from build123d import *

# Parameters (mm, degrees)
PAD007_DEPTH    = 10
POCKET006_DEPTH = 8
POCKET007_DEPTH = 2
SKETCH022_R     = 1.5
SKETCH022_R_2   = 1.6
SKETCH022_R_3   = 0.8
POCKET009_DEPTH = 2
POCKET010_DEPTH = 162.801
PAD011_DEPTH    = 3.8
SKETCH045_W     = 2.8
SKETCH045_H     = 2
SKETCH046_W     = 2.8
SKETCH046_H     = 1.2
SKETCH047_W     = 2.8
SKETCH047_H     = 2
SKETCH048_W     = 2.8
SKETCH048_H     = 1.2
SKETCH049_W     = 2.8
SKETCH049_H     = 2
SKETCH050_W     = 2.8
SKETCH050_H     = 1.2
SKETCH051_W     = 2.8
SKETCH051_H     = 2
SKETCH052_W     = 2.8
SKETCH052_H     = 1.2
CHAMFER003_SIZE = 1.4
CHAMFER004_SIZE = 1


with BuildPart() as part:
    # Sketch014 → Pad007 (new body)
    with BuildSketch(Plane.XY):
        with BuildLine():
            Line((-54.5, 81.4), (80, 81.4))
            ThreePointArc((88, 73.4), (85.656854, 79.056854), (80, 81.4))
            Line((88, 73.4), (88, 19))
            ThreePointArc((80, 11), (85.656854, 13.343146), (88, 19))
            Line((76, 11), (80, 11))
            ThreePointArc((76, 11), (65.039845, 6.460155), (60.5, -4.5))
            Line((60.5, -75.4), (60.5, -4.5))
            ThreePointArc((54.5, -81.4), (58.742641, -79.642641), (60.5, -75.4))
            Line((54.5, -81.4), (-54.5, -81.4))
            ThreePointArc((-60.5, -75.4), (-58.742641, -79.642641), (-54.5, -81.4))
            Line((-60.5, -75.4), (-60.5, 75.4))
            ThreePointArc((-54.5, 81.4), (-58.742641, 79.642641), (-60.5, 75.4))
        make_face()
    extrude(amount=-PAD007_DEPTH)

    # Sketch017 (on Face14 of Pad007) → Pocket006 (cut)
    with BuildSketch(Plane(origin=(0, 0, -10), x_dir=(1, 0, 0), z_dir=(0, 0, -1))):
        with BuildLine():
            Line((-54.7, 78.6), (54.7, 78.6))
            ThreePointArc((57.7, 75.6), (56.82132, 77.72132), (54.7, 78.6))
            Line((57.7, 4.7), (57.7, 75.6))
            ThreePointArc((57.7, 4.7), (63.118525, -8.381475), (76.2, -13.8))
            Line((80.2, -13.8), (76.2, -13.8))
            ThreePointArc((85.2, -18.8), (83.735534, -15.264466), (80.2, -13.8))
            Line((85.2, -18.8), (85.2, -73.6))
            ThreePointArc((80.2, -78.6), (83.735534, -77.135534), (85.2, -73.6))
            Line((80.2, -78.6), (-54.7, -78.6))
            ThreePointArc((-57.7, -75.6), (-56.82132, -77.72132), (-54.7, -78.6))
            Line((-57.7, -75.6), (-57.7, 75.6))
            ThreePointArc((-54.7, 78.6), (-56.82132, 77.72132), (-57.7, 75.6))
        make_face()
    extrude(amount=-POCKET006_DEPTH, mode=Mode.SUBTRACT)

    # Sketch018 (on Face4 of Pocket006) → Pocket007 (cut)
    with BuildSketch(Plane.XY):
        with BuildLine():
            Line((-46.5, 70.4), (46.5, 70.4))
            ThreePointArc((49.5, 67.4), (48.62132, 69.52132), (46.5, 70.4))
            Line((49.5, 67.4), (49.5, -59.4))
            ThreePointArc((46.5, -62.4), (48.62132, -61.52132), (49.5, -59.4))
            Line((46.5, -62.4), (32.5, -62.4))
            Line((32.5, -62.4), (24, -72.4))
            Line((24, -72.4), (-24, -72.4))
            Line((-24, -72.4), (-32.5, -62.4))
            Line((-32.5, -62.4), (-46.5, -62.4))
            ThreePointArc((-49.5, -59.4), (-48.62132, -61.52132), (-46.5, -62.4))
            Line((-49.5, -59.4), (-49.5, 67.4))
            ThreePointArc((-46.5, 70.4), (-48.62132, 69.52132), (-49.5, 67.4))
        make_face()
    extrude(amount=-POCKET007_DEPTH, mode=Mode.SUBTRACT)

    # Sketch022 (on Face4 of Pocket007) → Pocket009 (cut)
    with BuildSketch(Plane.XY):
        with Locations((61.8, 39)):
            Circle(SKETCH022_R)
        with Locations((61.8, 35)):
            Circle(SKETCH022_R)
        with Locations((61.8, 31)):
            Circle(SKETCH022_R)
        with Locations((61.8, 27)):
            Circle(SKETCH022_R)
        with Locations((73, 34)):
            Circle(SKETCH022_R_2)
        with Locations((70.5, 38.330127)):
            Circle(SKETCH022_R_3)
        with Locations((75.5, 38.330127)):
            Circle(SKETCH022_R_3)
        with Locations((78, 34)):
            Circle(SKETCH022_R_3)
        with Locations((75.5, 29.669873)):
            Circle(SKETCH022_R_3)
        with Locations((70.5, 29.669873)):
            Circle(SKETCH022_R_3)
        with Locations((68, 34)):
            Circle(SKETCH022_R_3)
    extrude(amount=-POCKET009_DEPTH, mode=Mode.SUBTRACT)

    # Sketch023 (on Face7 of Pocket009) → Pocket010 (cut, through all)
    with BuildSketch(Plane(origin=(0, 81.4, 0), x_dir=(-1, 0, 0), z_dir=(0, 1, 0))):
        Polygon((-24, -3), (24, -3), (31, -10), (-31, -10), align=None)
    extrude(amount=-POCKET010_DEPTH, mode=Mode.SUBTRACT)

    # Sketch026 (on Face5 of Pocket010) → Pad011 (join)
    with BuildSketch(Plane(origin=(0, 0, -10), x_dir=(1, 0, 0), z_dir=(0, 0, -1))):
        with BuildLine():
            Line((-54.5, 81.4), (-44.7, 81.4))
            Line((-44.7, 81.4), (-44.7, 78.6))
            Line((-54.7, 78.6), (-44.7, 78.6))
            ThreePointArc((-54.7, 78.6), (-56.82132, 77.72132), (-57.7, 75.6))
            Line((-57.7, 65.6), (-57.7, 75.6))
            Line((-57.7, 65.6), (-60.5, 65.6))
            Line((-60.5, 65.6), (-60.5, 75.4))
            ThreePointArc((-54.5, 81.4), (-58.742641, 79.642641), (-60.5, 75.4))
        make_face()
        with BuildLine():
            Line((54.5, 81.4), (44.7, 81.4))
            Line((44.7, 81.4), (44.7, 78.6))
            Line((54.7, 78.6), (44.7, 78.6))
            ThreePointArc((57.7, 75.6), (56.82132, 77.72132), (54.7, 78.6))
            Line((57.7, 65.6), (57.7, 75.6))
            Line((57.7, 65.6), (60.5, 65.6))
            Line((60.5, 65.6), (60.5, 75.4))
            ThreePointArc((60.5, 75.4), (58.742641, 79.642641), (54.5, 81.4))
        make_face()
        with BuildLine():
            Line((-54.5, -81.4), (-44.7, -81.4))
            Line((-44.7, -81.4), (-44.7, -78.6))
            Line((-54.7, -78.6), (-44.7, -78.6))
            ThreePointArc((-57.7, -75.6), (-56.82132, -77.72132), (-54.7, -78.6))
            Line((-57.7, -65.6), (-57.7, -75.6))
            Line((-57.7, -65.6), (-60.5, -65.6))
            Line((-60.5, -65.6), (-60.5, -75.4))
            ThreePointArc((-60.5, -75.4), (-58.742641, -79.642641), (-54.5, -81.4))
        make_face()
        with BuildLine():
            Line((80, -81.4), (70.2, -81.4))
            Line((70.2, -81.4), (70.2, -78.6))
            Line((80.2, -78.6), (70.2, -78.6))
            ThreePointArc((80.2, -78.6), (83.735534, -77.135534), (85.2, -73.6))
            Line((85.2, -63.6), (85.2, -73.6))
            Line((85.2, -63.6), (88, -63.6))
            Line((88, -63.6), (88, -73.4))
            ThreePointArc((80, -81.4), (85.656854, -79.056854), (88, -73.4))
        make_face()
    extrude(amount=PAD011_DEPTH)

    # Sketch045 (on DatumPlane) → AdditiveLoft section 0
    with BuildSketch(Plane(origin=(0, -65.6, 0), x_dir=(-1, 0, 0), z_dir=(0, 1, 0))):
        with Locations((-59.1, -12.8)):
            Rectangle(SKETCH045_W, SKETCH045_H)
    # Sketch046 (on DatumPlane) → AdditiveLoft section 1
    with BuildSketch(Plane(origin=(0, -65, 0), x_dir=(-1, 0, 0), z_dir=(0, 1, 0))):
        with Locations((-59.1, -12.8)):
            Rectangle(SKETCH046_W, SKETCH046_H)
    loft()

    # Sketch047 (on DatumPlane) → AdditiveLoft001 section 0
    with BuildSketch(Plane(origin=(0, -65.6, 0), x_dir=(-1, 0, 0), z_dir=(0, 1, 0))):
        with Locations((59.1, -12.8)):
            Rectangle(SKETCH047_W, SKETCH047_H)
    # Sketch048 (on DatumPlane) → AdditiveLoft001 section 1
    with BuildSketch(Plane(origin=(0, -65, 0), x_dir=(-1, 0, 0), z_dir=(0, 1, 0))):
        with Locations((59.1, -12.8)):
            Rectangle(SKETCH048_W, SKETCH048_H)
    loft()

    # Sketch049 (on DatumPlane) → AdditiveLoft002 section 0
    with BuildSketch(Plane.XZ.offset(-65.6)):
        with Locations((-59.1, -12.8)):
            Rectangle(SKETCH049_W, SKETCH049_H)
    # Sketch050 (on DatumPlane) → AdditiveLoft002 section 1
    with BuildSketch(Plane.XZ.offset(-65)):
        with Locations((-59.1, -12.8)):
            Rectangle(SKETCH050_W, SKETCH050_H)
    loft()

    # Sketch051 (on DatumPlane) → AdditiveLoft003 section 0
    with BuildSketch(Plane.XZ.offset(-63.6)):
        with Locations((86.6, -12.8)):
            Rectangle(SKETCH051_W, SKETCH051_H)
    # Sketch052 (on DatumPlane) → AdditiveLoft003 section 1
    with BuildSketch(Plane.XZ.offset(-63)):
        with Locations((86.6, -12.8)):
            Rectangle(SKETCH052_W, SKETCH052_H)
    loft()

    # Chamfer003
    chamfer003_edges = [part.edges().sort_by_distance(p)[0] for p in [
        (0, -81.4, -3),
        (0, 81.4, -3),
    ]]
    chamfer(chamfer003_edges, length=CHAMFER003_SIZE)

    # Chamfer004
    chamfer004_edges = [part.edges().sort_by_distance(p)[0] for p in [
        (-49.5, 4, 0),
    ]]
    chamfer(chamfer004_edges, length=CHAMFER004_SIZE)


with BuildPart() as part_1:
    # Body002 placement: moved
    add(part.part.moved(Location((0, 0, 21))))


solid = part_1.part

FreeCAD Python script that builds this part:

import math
import FreeCAD as App
import Part
import Sketcher
from FreeCAD import Vector
Q = App.Units.Quantity


def edges_at(feature, points):
    """Names of the edges that pass closest to the given points."""
    edges = feature.Shape.Edges
    near = lambda p: min(range(len(edges)), key=lambda i: edges[i].distToShape(Part.Vertex(*p))[0])
    return sorted({f"Edge{near(p) + 1}" for p in points})

doc = App.newDocument("Part")
body = doc.addObject("PartDesign::Body", "Body")

sketch1 = body.newObject("Sketcher::SketchObject", "Sketch")
sketch1.AttachmentSupport = (doc.getObject("XY_Plane"), [""])
sketch1.MapMode = "FlatFace"
sketch1.addGeometry(Part.LineSegment(Vector(80, 81.4, 0), Vector(-54.5, 81.4, 0)), False)
sketch1.addGeometry(Part.ArcOfCircle(Part.Circle(Vector(-54.5, 75.4, 0), Vector(0, 0, 1), 6), math.radians(90), math.radians(180)), False)
sketch1.addGeometry(Part.LineSegment(Vector(-60.5, 75.4, 0), Vector(-60.5, -75.4, 0)), False)
sketch1.addGeometry(Part.ArcOfCircle(Part.Circle(Vector(-54.5, -75.4, 0), Vector(0, 0, 1), 6), math.radians(180), math.radians(270)), False)
sketch1.addGeometry(Part.LineSegment(Vector(-54.5, -81.4, 0), Vector(54.5, -81.4, 0)), False)
sketch1.addGeometry(Part.ArcOfCircle(Part.Circle(Vector(54.5, -75.4, 0), Vector(0, 0, 1), 6), math.radians(-90), math.radians(0)), False)
sketch1.addGeometry(Part.LineSegment(Vector(60.5, -75.4, 0), Vector(60.5, -4.5, 0)), False)
sketch1.addGeometry(Part.ArcOfCircle(Part.Circle(Vector(76, -4.5, 0), Vector(0, 0, 1), 15.5), math.radians(90), math.radians(180)), False)
sketch1.addGeometry(Part.LineSegment(Vector(76, 11, 0), Vector(80, 11, 0)), False)
sketch1.addGeometry(Part.ArcOfCircle(Part.Circle(Vector(80, 19, 0), Vector(0, 0, 1), 8), math.radians(-90), math.radians(0)), False)
sketch1.addGeometry(Part.LineSegment(Vector(88, 19, 0), Vector(88, 73.4, 0)), False)
sketch1.addGeometry(Part.ArcOfCircle(Part.Circle(Vector(80, 73.4, 0), Vector(0, 0, 1), 8), math.radians(0), math.radians(90)), False)
sketch1.addConstraint(Sketcher.Constraint("Tangent", 0, 2, 1, 1))
sketch1.addConstraint(Sketcher.Constraint("Tangent", 1, 2, 2, 1))
sketch1.addConstraint(Sketcher.Constraint("Tangent", 2, 2, 3, 1))
sketch1.addConstraint(Sketcher.Constraint("Tangent", 3, 2, 4, 1))
sketch1.addConstraint(Sketcher.Constraint("Tangent", 4, 2, 5, 1))
sketch1.addConstraint(Sketcher.Constraint("Tangent", 5, 2, 6, 1))
sketch1.addConstraint(Sketcher.Constraint("Tangent", 6, 2, 7, 2))
sketch1.addConstraint(Sketcher.Constraint("Tangent", 7, 1, 8, 1))
sketch1.addConstraint(Sketcher.Constraint("Tangent", 8, 2, 9, 1))
sketch1.addConstraint(Sketcher.Constraint("Tangent", 9, 2, 10, 1))
sketch1.addConstraint(Sketcher.Constraint("Tangent", 10, 2, 11, 1))
sketch1.addConstraint(Sketcher.Constraint("Tangent", 11, 2, 0, 1))
sketch1.addConstraint(Sketcher.Constraint("Horizontal", 0))
sketch1.addConstraint(Sketcher.Constraint("Vertical", 2))
sketch1.addConstraint(Sketcher.Constraint("Horizontal", 4))
sketch1.addConstraint(Sketcher.Constraint("Vertical", 6))
sketch1.addConstraint(Sketcher.Constraint("Horizontal", 8))
sketch1.addConstraint(Sketcher.Constraint("Vertical", 10))
sketch1.addConstraint(Sketcher.Constraint("Equal", 1, 3))
sketch1.addConstraint(Sketcher.Constraint("Equal", 3, 5))
sketch1.addConstraint(Sketcher.Constraint("Equal", 9, 11))
sketch1.addConstraint(Sketcher.Constraint("Symmetric", 1, 3, 5, 3, -1, 1))
sketch1.addConstraint(Sketcher.Constraint("Radius", 1, Q("5.999999 mm")))
sketch1.addConstraint(Sketcher.Constraint("Radius", 9, Q("8.000001 mm")))
sketch1.addConstraint(Sketcher.Constraint("Radius", 7, Q("15.5 mm")))
sketch1.addConstraint(Sketcher.Constraint("DistanceX", 4, 1, 4, 2, Q("109 mm")))
sketch1.addConstraint(Sketcher.Constraint("DistanceX", 8, 1, 8, 2, Q("4 mm")))
sketch1.addConstraint(Sketcher.Constraint("DistanceY", 2, 2, 2, 1, Q("150.8 mm")))
sketch1.addConstraint(Sketcher.Constraint("DistanceY", 6, 1, 6, 2, Q("70.9 mm")))
pad1 = body.newObject("PartDesign::Pad", "Pad")
pad1.Profile = sketch1
pad1.Length = 10
pad1.Reversed = True

sketch2 = body.newObject("Sketcher::SketchObject", "Sketch001")
sketch2.AttachmentSupport = (doc.getObject("XY_Plane"), [""])
sketch2.MapMode = "FlatFace"
sketch2.AttachmentOffset = App.Placement(Vector(0, 0, -10), App.Rotation())
sketch2.addGeometry(Part.LineSegment(Vector(54.7, -78.6, 0), Vector(-54.7, -78.6, 0)), False)
sketch2.addGeometry(Part.ArcOfCircle(Part.Circle(Vector(-54.7, -75.6, 0), Vector(0, 0, 1), 3), math.radians(-180), math.radians(-90)), False)
sketch2.addGeometry(Part.LineSegment(Vector(-57.7, -75.6, 0), Vector(-57.7, 75.6, 0)), False)
sketch2.addGeometry(Part.ArcOfCircle(Part.Circle(Vector(-54.7, 75.6, 0), Vector(0, 0, 1), 3), math.radians(90), math.radians(180)), False)
sketch2.addGeometry(Part.LineSegment(Vector(-54.7, 78.6, 0), Vector(80.2, 78.6, 0)), False)
sketch2.addGeometry(Part.ArcOfCircle(Part.Circle(Vector(80.2, 73.6, 0), Vector(0, 0, 1), 5), math.radians(0), math.radians(90)), False)
sketch2.addGeometry(Part.LineSegment(Vector(85.2, 73.6, 0), Vector(85.2, 18.8, 0)), False)
sketch2.addGeometry(Part.ArcOfCircle(Part.Circle(Vector(80.2, 18.8, 0), Vector(0, 0, 1), 5), math.radians(-90), math.radians(0)), False)
sketch2.addGeometry(Part.LineSegment(Vector(80.2, 13.8, 0), Vector(76.2, 13.8, 0)), False)
sketch2.addGeometry(Part.ArcOfCircle(Part.Circle(Vector(76.2, -4.7, 0), Vector(0, 0, 1), 18.5), math.radians(90), math.radians(180)), False)
sketch2.addGeometry(Part.LineSegment(Vector(57.7, -4.7, 0), Vector(57.7, -75.6, 0)), False)
sketch2.addGeometry(Part.ArcOfCircle(Part.Circle(Vector(54.7, -75.6, 0), Vector(0, 0, 1), 3), math.radians(-90), math.radians(0)), False)
sketch2.addConstraint(Sketcher.Constraint("Tangent", 0, 2, 1, 2))
sketch2.addConstraint(Sketcher.Constraint("Tangent", 1, 1, 2, 1))
sketch2.addConstraint(Sketcher.Constraint("Tangent", 2, 2, 3, 2))
sketch2.addConstraint(Sketcher.Constraint("Tangent", 3, 1, 4, 1))
sketch2.addConstraint(Sketcher.Constraint("Tangent", 4, 2, 5, 2))
sketch2.addConstraint(Sketcher.Constraint("Tangent", 5, 1, 6, 1))
sketch2.addConstraint(Sketcher.Constraint("Tangent", 6, 2, 7, 2))
sketch2.addConstraint(Sketcher.Constraint("Tangent", 7, 1, 8, 1))
sketch2.addConstraint(Sketcher.Constraint("Tangent", 8, 2, 9, 1))
sketch2.addConstraint(Sketcher.Constraint("Tangent", 9, 2, 10, 1))
sketch2.addConstraint(Sketcher.Constraint("Tangent", 10, 2, 11, 2))
sketch2.addConstraint(Sketcher.Constraint("Tangent", 11, 1, 0, 1))
sketch2.addConstraint(Sketcher.Constraint("Horizontal", 0))
sketch2.addConstraint(Sketcher.Constraint("Vertical", 2))
sketch2.addConstraint(Sketcher.Constraint("Horizontal", 4))
sketch2.addConstraint(Sketcher.Constraint("Vertical", 6))
sketch2.addConstraint(Sketcher.Constraint("Horizontal", 8))
sketch2.addConstraint(Sketcher.Constraint("Vertical", 10))
sketch2.addConstraint(Sketcher.Constraint("Equal", 1, 3))
sketch2.addConstraint(Sketcher.Constraint("Equal", 5, 7))
sketch2.addConstraint(Sketcher.Constraint("Equal", 3, 11))
sketch2.addConstraint(Sketcher.Constraint("Symmetric", 3, 3, 11, 3, -1, 1))
sketch2.addConstraint(Sketcher.Constraint("Radius", 1, Q("3.000001 mm")))
sketch2.addConstraint(Sketcher.Constraint("Radius", 5, Q("5 mm")))
sketch2.addConstraint(Sketcher.Constraint("Radius", 9, Q("18.500002 mm")))
sketch2.addConstraint(Sketcher.Constraint("DistanceX", 8, 2, 8, 1, Q("4 mm")))
sketch2.addConstraint(Sketcher.Constraint("DistanceX", 0, 2, 0, 1, Q("109.4 mm")))
sketch2.addConstraint(Sketcher.Constraint("DistanceY", 2, 1, 2, 2, Q("151.2 mm")))
sketch2.addConstraint(Sketcher.Constraint("DistanceY", 6, 2, 6, 1, Q("54.8 mm")))
pocket1 = body.newObject("PartDesign::Pocket", "Pocket")
pocket1.Profile = sketch2
pocket1.Length = 8
pocket1.Reversed = True

sketch3 = body.newObject("Sketcher::SketchObject", "Sketch002")
sketch3.AttachmentSupport = (doc.getObject("XY_Plane"), [""])
sketch3.MapMode = "FlatFace"
sketch3.addGeometry(Part.LineSegment(Vector(46.5, 70.4, 0), Vector(-46.5, 70.4, 0)), False)
sketch3.addGeometry(Part.ArcOfCircle(Part.Circle(Vector(-46.5, 67.4, 0), Vector(0, 0, 1), 3), math.radians(90), math.radians(180)), False)
sketch3.addGeometry(Part.LineSegment(Vector(-49.5, 67.4, 0), Vector(-49.5, -59.4, 0)), False)
sketch3.addGeometry(Part.ArcOfCircle(Part.Circle(Vector(-46.5, -59.4, 0), Vector(0, 0, 1), 3), math.radians(-180), math.radians(-90)), False)
sketch3.addGeometry(Part.LineSegment(Vector(-46.5, -62.4, 0), Vector(-32.5, -62.4, 0)), False)
sketch3.addGeometry(Part.LineSegment(Vector(-32.5, -62.4, 0), Vector(-24, -72.4, 0)), False)
sketch3.addGeometry(Part.LineSegment(Vector(-24, -72.4, 0), Vector(24, -72.4, 0)), False)
sketch3.addGeometry(Part.LineSegment(Vector(24, -72.4, 0), Vector(32.5, -62.4, 0)), False)
sketch3.addGeometry(Part.LineSegment(Vector(32.5, -62.4, 0), Vector(46.5, -62.4, 0)), False)
sketch3.addGeometry(Part.ArcOfCircle(Part.Circle(Vector(46.5, -59.4, 0), Vector(0, 0, 1), 3), math.radians(-90), math.radians(0)), False)
sketch3.addGeometry(Part.LineSegment(Vector(49.5, -59.4, 0), Vector(49.5, 67.4, 0)), False)
sketch3.addGeometry(Part.ArcOfCircle(Part.Circle(Vector(46.5, 67.4, 0), Vector(0, 0, 1), 3), math.radians(0), math.radians(90)), False)
sketch3.addConstraint(Sketcher.Constraint("Tangent", 0, 2, 1, 1))
sketch3.addConstraint(Sketcher.Constraint("Tangent", 1, 2, 2, 1))
sketch3.addConstraint(Sketcher.Constraint("Tangent", 2, 2, 3, 1))
sketch3.addConstraint(Sketcher.Constraint("Tangent", 3, 2, 4, 1))
sketch3.addConstraint(Sketcher.Constraint("Coincident", 4, 2, 5, 1))
sketch3.addConstraint(Sketcher.Constraint("Coincident", 5, 2, 6, 1))
sketch3.addConstraint(Sketcher.Constraint("Coincident", 6, 2, 7, 1))
sketch3.addConstraint(Sketcher.Constraint("Coincident", 7, 2, 8, 1))
sketch3.addConstraint(Sketcher.Constraint("Tangent", 8, 2, 9, 1))
sketch3.addConstraint(Sketcher.Constraint("Tangent", 9, 2, 10, 1))
sketch3.addConstraint(Sketcher.Constraint("Tangent", 10, 2, 11, 1))
sketch3.addConstraint(Sketcher.Constraint("Tangent", 11, 2, 0, 1))
sketch3.addConstraint(Sketcher.Constraint("Horizontal", 0))
sketch3.addConstraint(Sketcher.Constraint("Vertical", 2))
sketch3.addConstraint(Sketcher.Constraint("Horizontal", 4))
sketch3.addConstraint(Sketcher.Constraint("Horizontal", 6))
sketch3.addConstraint(Sketcher.Constraint("Horizontal", 8))
sketch3.addConstraint(Sketcher.Constraint("Vertical", 10))
sketch3.addConstraint(Sketcher.Constraint("Equal", 1, 3))
sketch3.addConstraint(Sketcher.Constraint("Equal", 3, 9))
sketch3.addConstraint(Sketcher.Constraint("Equal", 9, 11))
sketch3.addConstraint(Sketcher.Constraint("Symmetric", 3, 3, 9, 3, -2))
sketch3.addConstraint(Sketcher.Constraint("Equal", 4, 8))
sketch3.addConstraint(Sketcher.Constraint("Equal", 5, 7))
sketch3.addConstraint(Sketcher.Constraint("Radius", 1, Q("3.000001 mm")))
sketch3.addConstraint(Sketcher.Constraint("DistanceX", 0, 2, 0, 1, Q("93 mm")))
sketch3.addConstraint(Sketcher.Constraint("DistanceX", 4, 1, 4, 2, Q("14 mm")))
sketch3.addConstraint(Sketcher.Constraint("DistanceX", 6, 1, 6, 2, Q("48 mm")))
sketch3.addConstraint(Sketcher.Constraint("DistanceY", 2, 2, 2, 1, Q("126.8 mm")))
sketch3.addConstraint(Sketcher.Constraint("DistanceY", 5, 2, 4, 2, Q("10 mm")))
sketch3.addConstraint(Sketcher.Constraint("DistanceY", -1, 1, 1, 3, Q("67.399999 mm")))
pocket2 = body.newObject("PartDesign::Pocket", "Pocket001")
pocket2.Profile = sketch3
pocket2.Length = 2

sketch4 = body.newObject("Sketcher::SketchObject", "Sketch003")
sketch4.AttachmentSupport = (doc.getObject("XY_Plane"), [""])
sketch4.MapMode = "FlatFace"
sketch4.addGeometry(Part.Circle(Vector(61.8, 39, 0), Vector(0, 0, 1), 1.5), False)
sketch4.addGeometry(Part.Circle(Vector(61.8, 35, 0), Vector(0, 0, 1), 1.5), False)
sketch4.addGeometry(Part.Circle(Vector(61.8, 31, 0), Vector(0, 0, 1), 1.5), False)
sketch4.addGeometry(Part.Circle(Vector(61.8, 27, 0), Vector(0, 0, 1), 1.5), False)
sketch4.addGeometry(Part.Circle(Vector(73, 34, 0), Vector(0, 0, 1), 1.6), False)
sketch4.addGeometry(Part.Circle(Vector(70.5, 38.3, 0), Vector(0, 0, 1), 0.8), False)
sketch4.addGeometry(Part.Circle(Vector(75.5, 38.3, 0), Vector(0, 0, 1), 0.8), False)
sketch4.addGeometry(Part.Circle(Vector(78, 34, 0), Vector(0, 0, 1), 0.8), False)
sketch4.addGeometry(Part.Circle(Vector(75.5, 29.7, 0), Vector(0, 0, 1), 0.8), False)
sketch4.addGeometry(Part.Circle(Vector(70.5, 29.7, 0), Vector(0, 0, 1), 0.8), False)
sketch4.addGeometry(Part.Circle(Vector(68, 34, 0), Vector(0, 0, 1), 0.8), False)
sketch4.addConstraint(Sketcher.Constraint("Equal", 0, 1))
sketch4.addConstraint(Sketcher.Constraint("Equal", 1, 2))
sketch4.addConstraint(Sketcher.Constraint("Equal", 2, 3))
sketch4.addConstraint(Sketcher.Constraint("Equal", 5, 6))
sketch4.addConstraint(Sketcher.Constraint("Equal", 6, 7))
sketch4.addConstraint(Sketcher.Constraint("Equal", 7, 8))
sketch4.addConstraint(Sketcher.Constraint("Equal", 8, 9))
sketch4.addConstraint(Sketcher.Constraint("Equal", 9, 10))
sketch4.addConstraint(Sketcher.Constraint("Horizontal", 5, 3, 6, 3))
sketch4.addConstraint(Sketcher.Constraint("Horizontal", 4, 3, 7, 3))
sketch4.addConstraint(Sketcher.Constraint("Horizontal", 8, 3, 9, 3))
sketch4.addConstraint(Sketcher.Constraint("Horizontal", 7, 3, 10, 3))
sketch4.addConstraint(Sketcher.Constraint("Vertical", 0, 3, 1, 3))
sketch4.addConstraint(Sketcher.Constraint("Vertical", 1, 3, 2, 3))
sketch4.addConstraint(Sketcher.Constraint("Vertical", 2, 3, 3, 3))
sketch4.addConstraint(Sketcher.Constraint("Vertical", 6, 3, 8, 3))
sketch4.addConstraint(Sketcher.Constraint("Vertical", 5, 3, 9, 3))
sketch4.addConstraint(Sketcher.Constraint("Diameter", 0, Q("3 mm")))
sketch4.addConstraint(Sketcher.Constraint("Diameter", 4, Q("3.2 mm")))
sketch4.addConstraint(Sketcher.Constraint("Diameter", 5, Q("1.6 mm")))
sketch4.addConstraint(Sketcher.Constraint("DistanceY", -1, 1, 0, 3, Q("39 mm")))
sketch4.addConstraint(Sketcher.Constraint("DistanceY", -1, 1, 1, 3, Q("35 mm")))
sketch4.addConstraint(Sketcher.Constraint("DistanceY", -1, 1, 2, 3, Q("31 mm")))
sketch4.addConstraint(Sketcher.Constraint("DistanceY", -1, 1, 3, 3, Q("27 mm")))
sketch4.addConstraint(Sketcher.Constraint("DistanceX", -1, 1, 4, 3, Q("73 mm")))
sketch4.addConstraint(Sketcher.Constraint("DistanceY", -1, 1, 4, 3, Q("34 mm")))
sketch4.addConstraint(Sketcher.Constraint("DistanceX", -1, 1, 7, 3, Q("78 mm")))
sketch4.addConstraint(Sketcher.Constraint("DistanceX", -1, 1, 10, 3, Q("68 mm")))
sketch4.addConstraint(Sketcher.Constraint("DistanceX", 5, 3, 6, 3, Q("5 mm")))
sketch4.addConstraint(Sketcher.Constraint("DistanceX", -1, 1, 0, 3, Q("61.8 mm")))
sketch4.addConstraint(Sketcher.Constraint("DistanceX", -1, 1, 5, 3, Q("70.5 mm")))
sketch4.addConstraint(Sketcher.Constraint("DistanceY", -1, 1, 5, 3, Q("38.330127 mm")))
sketch4.addConstraint(Sketcher.Constraint("DistanceY", -1, 1, 8, 3, Q("29.669873 mm")))
pocket3 = body.newObject("PartDesign::Pocket", "Pocket002")
pocket3.Profile = sketch4
pocket3.Length = 2

sketch5 = body.newObject("Sketcher::SketchObject", "Sketch004")
sketch5.AttachmentSupport = (doc.getObject("XZ_Plane"), [""])
sketch5.MapMode = "FlatFace"
sketch5.AttachmentOffset = App.Placement(Vector(0, 0, -81.4), App.Rotation())
sketch5.addGeometry(Part.LineSegment(Vector(-24, -3, 0), Vector(24, -3, 0)), False)
sketch5.addGeometry(Part.LineSegment(Vector(24, -3, 0), Vector(31, -10, 0)), False)
sketch5.addGeometry(Part.LineSegment(Vector(31, -10, 0), Vector(-31, -10, 0)), False)
sketch5.addGeometry(Part.LineSegment(Vector(-31, -10, 0), Vector(-24, -3, 0)), False)
sketch5.addConstraint(Sketcher.Constraint("Coincident", 0, 2, 1, 1))
sketch5.addConstraint(Sketcher.Constraint("Coincident", 1, 2, 2, 1))
sketch5.addConstraint(Sketcher.Constraint("Coincident", 2, 2, 3, 1))
sketch5.addConstraint(Sketcher.Constraint("Coincident", 3, 2, 0, 1))
sketch5.addConstraint(Sketcher.Constraint("Horizontal", 0))
sketch5.addConstraint(Sketcher.Constraint("Horizontal", 2))
sketch5.addConstraint(Sketcher.Constraint("Perpendicular", 1, 3))
sketch5.addConstraint(Sketcher.Constraint("Equal", 1, 3))
sketch5.addConstraint(Sketcher.Constraint("DistanceX", 0, 1, 0, 2, Q("48 mm")))
sketch5.addConstraint(Sketcher.Constraint("DistanceX", 2, 2, 2, 1, Q("62 mm")))
sketch5.addConstraint(Sketcher.Constraint("DistanceX", -1, 1, 0, 2, Q("24 mm")))
sketch5.addConstraint(Sketcher.Constraint("DistanceY", 0, 2, -1, 1, Q("3 mm")))
pocket4 = body.newObject("PartDesign::Pocket", "Pocket003")
pocket4.Profile = sketch5
pocket4.Type = "ThroughAll"
pocket4.Reversed = True

sketch6 = body.newObject("Sketcher::SketchObject", "Sketch005")
sketch6.AttachmentSupport = (doc.getObject("XY_Plane"), [""])
sketch6.MapMode = "FlatFace"
sketch6.AttachmentOffset = App.Placement(Vector(0, 0, -10), App.Rotation())
sketch6.addGeometry(Part.LineSegment(Vector(-44.7, -81.4, 0), Vector(-54.5, -81.4, 0)), False)
sketch6.addGeometry(Part.ArcOfCircle(Part.Circle(Vector(-54.5, -75.4, 0), Vector(0, 0, 1), 6), math.radians(180), math.radians(270)), False)
sketch6.addGeometry(Part.LineSegment(Vector(-60.5, -75.4, 0), Vector(-60.5, -65.6, 0)), False)
sketch6.addGeometry(Part.LineSegment(Vector(-60.5, -65.6, 0), Vector(-57.7, -65.6, 0)), False)
sketch6.addGeometry(Part.LineSegment(Vector(-57.7, -65.6, 0), Vector(-57.7, -75.6, 0)), False)
sketch6.addGeometry(Part.ArcOfCircle(Part.Circle(Vector(-54.7, -75.6, 0), Vector(0, 0, 1), 3), math.radians(-180), math.radians(-90)), False)
sketch6.addGeometry(Part.LineSegment(Vector(-54.7, -78.6, 0), Vector(-44.7, -78.6, 0)), False)
sketch6.addGeometry(Part.LineSegment(Vector(-44.7, -78.6, 0), Vector(-44.7, -81.4, 0)), False)
sketch6.addGeometry(Part.LineSegment(Vector(54.5, -81.4, 0), Vector(44.7, -81.4, 0)), False)
sketch6.addGeometry(Part.LineSegment(Vector(44.7, -81.4, 0), Vector(44.7, -78.6, 0)), False)
sketch6.addGeometry(Part.LineSegment(Vector(44.7, -78.6, 0), Vector(54.7, -78.6, 0)), False)
sketch6.addGeometry(Part.ArcOfCircle(Part.Circle(Vector(54.7, -75.6, 0), Vector(0, 0, 1), 3), math.radians(-90), math.radians(0)), False)
sketch6.addGeometry(Part.LineSegment(Vector(57.7, -75.6, 0), Vector(57.7, -65.6, 0)), False)
sketch6.addGeometry(Part.LineSegment(Vector(57.7, -65.6, 0), Vector(60.5, -65.6, 0)), False)
sketch6.addGeometry(Part.LineSegment(Vector(60.5, -65.6, 0), Vector(60.5, -75.4, 0)), False)
sketch6.addGeometry(Part.ArcOfCircle(Part.Circle(Vector(54.5, -75.4, 0), Vector(0, 0, 1), 6), math.radians(-90), math.radians(0)), False)
sketch6.addGeometry(Part.LineSegment(Vector(-54.5, 81.4, 0), Vector(-44.7, 81.4, 0)), False)
sketch6.addGeometry(Part.LineSegment(Vector(-44.7, 81.4, 0), Vector(-44.7, 78.6, 0)), False)
sketch6.addGeometry(Part.LineSegment(Vector(-44.7, 78.6, 0), Vector(-54.7, 78.6, 0)), False)
sketch6.addGeometry(Part.ArcOfCircle(Part.Circle(Vector(-54.7, 75.6, 0), Vector(0, 0, 1), 3), math.radians(90), math.radians(180)), False)
sketch6.addGeometry(Part.LineSegment(Vector(-57.7, 75.6, 0), Vector(-57.7, 65.6, 0)), False)
sketch6.addGeometry(Part.LineSegment(Vector(-57.7, 65.6, 0), Vector(-60.5, 65.6, 0)), False)
sketch6.addGeometry(Part.LineSegment(Vector(-60.5, 65.6, 0), Vector(-60.5, 75.4, 0)), False)
sketch6.addGeometry(Part.ArcOfCircle(Part.Circle(Vector(-54.5, 75.4, 0), Vector(0, 0, 1), 6), math.radians(90), math.radians(180)), False)
sketch6.addGeometry(Part.LineSegment(Vector(70.2, 81.4, 0), Vector(80, 81.4, 0)), False)
sketch6.addGeometry(Part.ArcOfCircle(Part.Circle(Vector(80, 73.4, 0), Vector(0, 0, 1), 8), math.radians(0), math.radians(90)), False)
sketch6.addGeometry(Part.LineSegment(Vector(88, 73.4, 0), Vector(88, 63.6, 0)), False)
sketch6.addGeometry(Part.LineSegment(Vector(88, 63.6, 0), Vector(85.2, 63.6, 0)), False)
sketch6.addGeometry(Part.LineSegment(Vector(85.2, 63.6, 0), Vector(85.2, 73.6, 0)), False)
sketch6.addGeometry(Part.ArcOfCircle(Part.Circle(Vector(80.2, 73.6, 0), Vector(0, 0, 1), 5), math.radians(0), math.radians(90)), False)
sketch6.addGeometry(Part.LineSegment(Vector(80.2, 78.6, 0), Vector(70.2, 78.6, 0)), False)
sketch6.addGeometry(Part.LineSegment(Vector(70.2, 78.6, 0), Vector(70.2, 81.4, 0)), False)
sketch6.addConstraint(Sketcher.Constraint("Tangent", 0, 2, 1, 2))
sketch6.addConstraint(Sketcher.Constraint("Tangent", 1, 1, 2, 1))
sketch6.addConstraint(Sketcher.Constraint("Coincident", 2, 2, 3, 1))
sketch6.addConstraint(Sketcher.Constraint("Coincident", 3, 2, 4, 1))
sketch6.addConstraint(Sketcher.Constraint("Tangent", 4, 2, 5, 1))
sketch6.addConstraint(Sketcher.Constraint("Tangent", 5, 2, 6, 1))
sketch6.addConstraint(Sketcher.Constraint("Coincident", 6, 2, 7, 1))
sketch6.addConstraint(Sketcher.Constraint("Coincident", 7, 2, 0, 1))
sketch6.addConstraint(Sketcher.Constraint("Coincident", 8, 2, 9, 1))
sketch6.addConstraint(Sketcher.Constraint("Coincident", 9, 2, 10, 1))
sketch6.addConstraint(Sketcher.Constraint("Tangent", 10, 2, 11, 1))
sketch6.addConstraint(Sketcher.Constraint("Tangent", 11, 2, 12, 1))
sketch6.addConstraint(Sketcher.Constraint("Coincident", 12, 2, 13, 1))
sketch6.addConstraint(Sketcher.Constraint("Coincident", 13, 2, 14, 1))
sketch6.addConstraint(Sketcher.Constraint("Tangent", 14, 2, 15, 2))
sketch6.addConstraint(Sketcher.Constraint("Tangent", 15, 1, 8, 1))
sketch6.addConstraint(Sketcher.Constraint("Coincident", 16, 2, 17, 1))
sketch6.addConstraint(Sketcher.Constraint("Coincident", 17, 2, 18, 1))
sketch6.addConstraint(Sketcher.Constraint("Tangent", 18, 2, 19, 1))
sketch6.addConstraint(Sketcher.Constraint("Tangent", 19, 2, 20, 1))
sketch6.addConstraint(Sketcher.Constraint("Coincident", 20, 2, 21, 1))
sketch6.addConstraint(Sketcher.Constraint("Coincident", 21, 2, 22, 1))
sketch6.addConstraint(Sketcher.Constraint("Tangent", 22, 2, 23, 2))
sketch6.addConstraint(Sketcher.Constraint("Tangent", 23, 1, 16, 1))
sketch6.addConstraint(Sketcher.Constraint("Tangent", 24, 2, 25, 2))
sketch6.addConstraint(Sketcher.Constraint("Tangent", 25, 1, 26, 1))
sketch6.addConstraint(Sketcher.Constraint("Coincident", 26, 2, 27, 1))
sketch6.addConstraint(Sketcher.Constraint("Coincident", 27, 2, 28, 1))
sketch6.addConstraint(Sketcher.Constraint("Tangent", 28, 2, 29, 1))
sketch6.addConstraint(Sketcher.Constraint("Tangent", 29, 2, 30, 1))
sketch6.addConstraint(Sketcher.Constraint("Coincident", 30, 2, 31, 1))
sketch6.addConstraint(Sketcher.Constraint("Coincident", 31, 2, 24, 1))
sketch6.addConstraint(Sketcher.Constraint("Horizontal", 0))
sketch6.addConstraint(Sketcher.Constraint("Vertical", 2))
sketch6.addConstraint(Sketcher.Constraint("Horizontal", 3))
sketch6.addConstraint(Sketcher.Constraint("Vertical", 4))
sketch6.addConstraint(Sketcher.Constraint("Horizontal", 6))
sketch6.addConstraint(Sketcher.Constraint("Vertical", 7))
sketch6.addConstraint(Sketcher.Constraint("Horizontal", 8))
sketch6.addConstraint(Sketcher.Constraint("Vertical", 9))
sketch6.addConstraint(Sketcher.Constraint("Horizontal", 10))
sketch6.addConstraint(Sketcher.Constraint("Vertical", 12))
sketch6.addConstraint(Sketcher.Constraint("Horizontal", 13))
sketch6.addConstraint(Sketcher.Constraint("Vertical", 14))
sketch6.addConstraint(Sketcher.Constraint("Horizontal", 16))
sketch6.addConstraint(Sketcher.Constraint("Vertical", 17))
sketch6.addConstraint(Sketcher.Constraint("Horizontal", 18))
sketch6.addConstraint(Sketcher.Constraint("Vertical", 20))
sketch6.addConstraint(Sketcher.Constraint("Horizontal", 21))
sketch6.addConstraint(Sketcher.Constraint("Vertical", 22))
sketch6.addConstraint(Sketcher.Constraint("Horizontal", 24))
sketch6.addConstraint(Sketcher.Constraint("Vertical", 26))
sketch6.addConstraint(Sketcher.Constraint("Horizontal", 27))
sketch6.addConstraint(Sketcher.Constraint("Vertical", 28))
sketch6.addConstraint(Sketcher.Constraint("Horizontal", 30))
sketch6.addConstraint(Sketcher.Constraint("Vertical", 31))
sketch6.addConstraint(Sketcher.Constraint("Equal", 5, 11))
sketch6.addConstraint(Sketcher.Constraint("Equal", 1, 15))
sketch6.addConstraint(Sketcher.Constraint("Equal", 11, 19))
sketch6.addConstraint(Sketcher.Constraint("Equal", 15, 23))
sketch6.addConstraint(Sketcher.Constraint("Symmetric", 11, 3, 19, 3, -1, 1))
sketch6.addConstraint(Sketcher.Constraint("Symmetric", 15, 3, 23, 3, -1, 1))
sketch6.addConstraint(Sketcher.Constraint("Symmetric", 5, 3, 11, 3, -2))
sketch6.addConstraint(Sketcher.Constraint("Symmetric", 1, 3, 15, 3, -2))
sketch6.addConstraint(Sketcher.Constraint("Horizontal", 3, 2, 12, 2))
sketch6.addConstraint(Sketcher.Constraint("Horizontal", 23, 1, 24, 2))
sketch6.addConstraint(Sketcher.Constraint("Horizontal", 18, 2, 29, 2))
sketch6.addConstraint(Sketcher.Constraint("Vertical", 7, 2, 16, 2))
sketch6.addConstraint(Sketcher.Constraint("Equal", 0, 8))
sketch6.addConstraint(Sketcher.Constraint("Equal", 16, 24))
sketch6.addConstraint(Sketcher.Constraint("Equal", 21, 27))
sketch6.addConstraint(Sketcher.Constraint("Equal", 18, 30))
sketch6.addConstraint(Sketcher.Constraint("Equal", 24, 2))
sketch6.addConstraint(Sketcher.Constraint("Equal", 30, 4))
sketch6.addConstraint(Sketcher.Constraint("Equal", 12, 20))
sketch6.addConstraint(Sketcher.Constraint("Equal", 22, 26))
sketch6.addConstraint(Sketcher.Constraint("Radius", 1, Q("5.999999 mm")))
sketch6.addConstraint(Sketcher.Constraint("Radius", 5, Q("3.000001 mm")))
sketch6.addConstraint(Sketcher.Constraint("Radius", 25, Q("8.000001 mm")))
sketch6.addConstraint(Sketcher.Constraint("DistanceX", 6, 1, 6, 2, Q("10 mm")))
sketch6.addConstraint(Sketcher.Constraint("DistanceX", 0, 2, 0, 1, Q("9.8 mm")))
sketch6.addConstraint(Sketcher.Constraint("DistanceX", -1, 1, 25, 3, Q("79.999999 mm")))
sketch6.addConstraint(Sketcher.Constraint("DistanceY", 1, 3, 19, 3, Q("151 mm")))
sketch6.addConstraint(Sketcher.Constraint("DistanceX", 0, 2, 15, 3, Q("109.000001 mm")))
pad2 = body.newObject("PartDesign::Pad", "Pad001")
pad2.Profile = sketch6
pad2.Length = 3.8
pad2.Reversed = True

sketch7 = body.newObject("Sketcher::SketchObject", "Sketch006")
sketch7.AttachmentSupport = (doc.getObject("XZ_Plane"), [""])
sketch7.MapMode = "FlatFace"
sketch7.AttachmentOffset = App.Placement(Vector(0, 0, 65.6), App.Rotation())
sketch7.addGeometry(Part.LineSegment(Vector(60.5, -11.8, 0), Vector(60.5, -13.8, 0)), False)
sketch7.addGeometry(Part.LineSegment(Vector(60.5, -13.8, 0), Vector(57.7, -13.8, 0)), False)
sketch7.addGeometry(Part.LineSegment(Vector(57.7, -13.8, 0), Vector(57.7, -11.8, 0)), False)
sketch7.addGeometry(Part.LineSegment(Vector(57.7, -11.8, 0), Vector(60.5, -11.8, 0)), False)
sketch7.addConstraint(Sketcher.Constraint("Coincident", 0, 2, 1, 1))
sketch7.addConstraint(Sketcher.Constraint("Coincident", 1, 2, 2, 1))
sketch7.addConstraint(Sketcher.Constraint("Coincident", 2, 2, 3, 1))
sketch7.addConstraint(Sketcher.Constraint("Coincident", 3, 2, 0, 1))
sketch7.addConstraint(Sketcher.Constraint("Vertical", 0))
sketch7.addConstraint(Sketcher.Constraint("Horizontal", 1))
sketch7.addConstraint(Sketcher.Constraint("Vertical", 2))
sketch7.addConstraint(Sketcher.Constraint("Horizontal", 3))
sketch7.addConstraint(Sketcher.Constraint("DistanceY", 0, 2, 0, 1, Q("2 mm")))
sketch7.addConstraint(Sketcher.Constraint("DistanceX", 1, 2, 1, 1, Q("2.8 mm")))
sketch7.addConstraint(Sketcher.Constraint("DistanceX", -1, 1, 0, 2, Q("60.5 mm")))
sketch7.addConstraint(Sketcher.Constraint("DistanceY", 0, 2, -1, 1, Q("13.8 mm")))

sketch8 = body.newObject("Sketcher::SketchObject", "Sketch007")
sketch8.AttachmentSupport = (doc.getObject("XZ_Plane"), [""])
sketch8.MapMode = "FlatFace"
sketch8.AttachmentOffset = App.Placement(Vector(0, 0, 65), App.Rotation())
sketch8.addGeometry(Part.LineSegment(Vector(60.5, -12.2, 0), Vector(60.5, -13.4, 0)), False)
sketch8.addGeometry(Part.LineSegment(Vector(60.5, -13.4, 0), Vector(57.7, -13.4, 0)), False)
sketch8.addGeometry(Part.LineSegment(Vector(57.7, -13.4, 0), Vector(57.7, -12.2, 0)), False)
sketch8.addGeometry(Part.LineSegment(Vector(57.7, -12.2, 0), Vector(60.5, -12.2, 0)), False)
sketch8.addConstraint(Sketcher.Constraint("Coincident", 0, 2, 1, 1))
sketch8.addConstraint(Sketcher.Constraint("Coincident", 1, 2, 2, 1))
sketch8.addConstraint(Sketcher.Constraint("Coincident", 2, 2, 3, 1))
sketch8.addConstraint(Sketcher.Constraint("Coincident", 3, 2, 0, 1))
sketch8.addConstraint(Sketcher.Constraint("Vertical", 0))
sketch8.addConstraint(Sketcher.Constraint("Horizontal", 1))
sketch8.addConstraint(Sketcher.Constraint("Vertical", 2))
sketch8.addConstraint(Sketcher.Constraint("Horizontal", 3))
sketch8.addConstraint(Sketcher.Constraint("DistanceX", 1, 2, 1, 1, Q("2.8 mm")))
sketch8.addConstraint(Sketcher.Constraint("DistanceY", 0, 2, 0, 1, Q("1.2 mm")))
sketch8.addConstraint(Sketcher.Constraint("DistanceX", -1, 1, 0, 2, Q("60.5 mm")))
sketch8.addConstraint(Sketcher.Constraint("DistanceY", 0, 2, -1, 1, Q("13.4 mm")))

additiveloft = body.newObject("PartDesign::AdditiveLoft", "AdditiveLoft")
additiveloft.Profile = sketch7
additiveloft.Sections = [sketch8]

sketch9 = body.newObject("Sketcher::SketchObject", "Sketch008")
sketch9.AttachmentSupport = (doc.getObject("XZ_Plane"), [""])
sketch9.MapMode = "FlatFace"
sketch9.AttachmentOffset = App.Placement(Vector(0, 0, 65.6), App.Rotation())
sketch9.addGeometry(Part.LineSegment(Vector(-57.7, -11.8, 0), Vector(-57.7, -13.8, 0)), False)
sketch9.addGeometry(Part.LineSegment(Vector(-57.7, -13.8, 0), Vector(-60.5, -13.8, 0)), False)
sketch9.addGeometry(Part.LineSegment(Vector(-60.5, -13.8, 0), Vector(-60.5, -11.8, 0)), False)
sketch9.addGeometry(Part.LineSegment(Vector(-60.5, -11.8, 0), Vector(-57.7, -11.8, 0)), False)
sketch9.addConstraint(Sketcher.Constraint("Coincident", 0, 2, 1, 1))
sketch9.addConstraint(Sketcher.Constraint("Coincident", 1, 2, 2, 1))
sketch9.addConstraint(Sketcher.Constraint("Coincident", 2, 2, 3, 1))
sketch9.addConstraint(Sketcher.Constraint("Coincident", 3, 2, 0, 1))
sketch9.addConstraint(Sketcher.Constraint("Vertical", 0))
sketch9.addConstraint(Sketcher.Constraint("Horizontal", 1))
sketch9.addConstraint(Sketcher.Constraint("Vertical", 2))
sketch9.addConstraint(Sketcher.Constraint("Horizontal", 3))
sketch9.addConstraint(Sketcher.Constraint("DistanceY", 0, 2, 0, 1, Q("2 mm")))
sketch9.addConstraint(Sketcher.Constraint("DistanceX", 1, 2, 1, 1, Q("2.8 mm")))
sketch9.addConstraint(Sketcher.Constraint("DistanceX", 0, 2, -1, 1, Q("57.7 mm")))
sketch9.addConstraint(Sketcher.Constraint("DistanceY", 0, 2, -1, 1, Q("13.8 mm")))

sketch10 = body.newObject("Sketcher::SketchObject", "Sketch009")
sketch10.AttachmentSupport = (doc.getObject("XZ_Plane"), [""])
sketch10.MapMode = "FlatFace"
sketch10.AttachmentOffset = App.Placement(Vector(0, 0, 65), App.Rotation())
sketch10.addGeometry(Part.LineSegment(Vector(-57.7, -12.2, 0), Vector(-57.7, -13.4, 0)), False)
sketch10.addGeometry(Part.LineSegment(Vector(-57.7, -13.4, 0), Vector(-60.5, -13.4, 0)), False)
sketch10.addGeometry(Part.LineSegment(Vector(-60.5, -13.4, 0), Vector(-60.5, -12.2, 0)), False)
sketch10.addGeometry(Part.LineSegment(Vector(-60.5, -12.2, 0), Vector(-57.7, -12.2, 0)), False)
sketch10.addConstraint(Sketcher.Constraint("Coincident", 0, 2, 1, 1))
sketch10.addConstraint(Sketcher.Constraint("Coincident", 1, 2, 2, 1))
sketch10.addConstraint(Sketcher.Constraint("Coincident", 2, 2, 3, 1))
sketch10.addConstraint(Sketcher.Constraint("Coincident", 3, 2, 0, 1))
sketch10.addConstraint(Sketcher.Constraint("Vertical", 0))
sketch10.addConstraint(Sketcher.Constraint("Horizontal", 1))
sketch10.addConstraint(Sketcher.Constraint("Vertical", 2))
sketch10.addConstraint(Sketcher.Constraint("Horizontal", 3))
sketch10.addConstraint(Sketcher.Constraint("DistanceX", 1, 2, 1, 1, Q("2.8 mm")))
sketch10.addConstraint(Sketcher.Constraint("DistanceY", 0, 2, 0, 1, Q("1.2 mm")))
sketch10.addConstraint(Sketcher.Constraint("DistanceX", 0, 2, -1, 1, Q("57.7 mm")))
sketch10.addConstraint(Sketcher.Constraint("DistanceY", 0, 2, -1, 1, Q("13.4 mm")))

additiveloft2 = body.newObject("PartDesign::AdditiveLoft", "AdditiveLoft001")
additiveloft2.Profile = sketch9
additiveloft2.Sections = [sketch10]

sketch11 = body.newObject("Sketcher::SketchObject", "Sketch010")
sketch11.AttachmentSupport = (doc.getObject("XZ_Plane"), [""])
sketch11.MapMode = "FlatFace"
sketch11.AttachmentOffset = App.Placement(Vector(0, 0, -65.6), App.Rotation())
sketch11.addGeometry(Part.LineSegment(Vector(-60.5, -11.8, 0), Vector(-60.5, -13.8, 0)), False)
sketch11.addGeometry(Part.LineSegment(Vector(-60.5, -13.8, 0), Vector(-57.7, -13.8, 0)), False)
sketch11.addGeometry(Part.LineSegment(Vector(-57.7, -13.8, 0), Vector(-57.7, -11.8, 0)), False)
sketch11.addGeometry(Part.LineSegment(Vector(-57.7, -11.8, 0), Vector(-60.5, -11.8, 0)), False)
sketch11.addConstraint(Sketcher.Constraint("Coincident", 0, 2, 1, 1))
sketch11.addConstraint(Sketcher.Constraint("Coincident", 1, 2, 2, 1))
sketch11.addConstraint(Sketcher.Constraint("Coincident", 2, 2, 3, 1))
sketch11.addConstraint(Sketcher.Constraint("Coincident", 3, 2, 0, 1))
sketch11.addConstraint(Sketcher.Constraint("Vertical", 0))
sketch11.addConstraint(Sketcher.Constraint("Horizontal", 1))
sketch11.addConstraint(Sketcher.Constraint("Vertical", 2))
sketch11.addConstraint(Sketcher.Constraint("Horizontal", 3))
sketch11.addConstraint(Sketcher.Constraint("DistanceY", 0, 2, 0, 1, Q("2 mm")))
sketch11.addConstraint(Sketcher.Constraint("DistanceX", 1, 1, 1, 2, Q("2.8 mm")))
sketch11.addConstraint(Sketcher.Constraint("DistanceX", 0, 2, -1, 1, Q("60.5 mm")))
sketch11.addConstraint(Sketcher.Constraint("DistanceY", 0, 2, -1, 1, Q("13.8 mm")))

sketch12 = body.newObject("Sketcher::SketchObject", "Sketch011")
sketch12.AttachmentSupport = (doc.getObject("XZ_Plane"), [""])
sketch12.MapMode = "FlatFace"
sketch12.AttachmentOffset = App.Placement(Vector(0, 0, -65), App.Rotation())
sketch12.addGeometry(Part.LineSegment(Vector(-60.5, -12.2, 0), Vector(-60.5, -13.4, 0)), False)
sketch12.addGeometry(Part.LineSegment(Vector(-60.5, -13.4, 0), Vector(-57.7, -13.4, 0)), False)
sketch12.addGeometry(Part.LineSegment(Vector(-57.7, -13.4, 0), Vector(-57.7, -12.2, 0)), False)
sketch12.addGeometry(Part.LineSegment(Vector(-57.7, -12.2, 0), Vector(-60.5, -12.2, 0)), False)
sketch12.addConstraint(Sketcher.Constraint("Coincident", 0, 2, 1, 1))
sketch12.addConstraint(Sketcher.Constraint("Coincident", 1, 2, 2, 1))
sketch12.addConstraint(Sketcher.Constraint("Coincident", 2, 2, 3, 1))
sketch12.addConstraint(Sketcher.Constraint("Coincident", 3, 2, 0, 1))
sketch12.addConstraint(Sketcher.Constraint("Vertical", 0))
sketch12.addConstraint(Sketcher.Constraint("Horizontal", 1))
sketch12.addConstraint(Sketcher.Constraint("Vertical", 2))
sketch12.addConstraint(Sketcher.Constraint("Horizontal", 3))
sketch12.addConstraint(Sketcher.Constraint("DistanceX", 1, 1, 1, 2, Q("2.8 mm")))
sketch12.addConstraint(Sketcher.Constraint("DistanceY", 0, 2, 0, 1, Q("1.2 mm")))
sketch12.addConstraint(Sketcher.Constraint("DistanceX", 0, 2, -1, 1, Q("60.5 mm")))
sketch12.addConstraint(Sketcher.Constraint("DistanceY", 0, 2, -1, 1, Q("13.4 mm")))

additiveloft3 = body.newObject("PartDesign::AdditiveLoft", "AdditiveLoft002")
additiveloft3.Profile = sketch11
additiveloft3.Sections = [sketch12]

sketch13 = body.newObject("Sketcher::SketchObject", "Sketch012")
sketch13.AttachmentSupport = (doc.getObject("XZ_Plane"), [""])
sketch13.MapMode = "FlatFace"
sketch13.AttachmentOffset = App.Placement(Vector(0, 0, -63.6), App.Rotation())
sketch13.addGeometry(Part.LineSegment(Vector(85.2, -11.8, 0), Vector(85.2, -13.8, 0)), False)
sketch13.addGeometry(Part.LineSegment(Vector(85.2, -13.8, 0), Vector(88, -13.8, 0)), False)
sketch13.addGeometry(Part.LineSegment(Vector(88, -13.8, 0), Vector(88, -11.8, 0)), False)
sketch13.addGeometry(Part.LineSegment(Vector(88, -11.8, 0), Vector(85.2, -11.8, 0)), False)
sketch13.addConstraint(Sketcher.Constraint("Coincident", 0, 2, 1, 1))
sketch13.addConstraint(Sketcher.Constraint("Coincident", 1, 2, 2, 1))
sketch13.addConstraint(Sketcher.Constraint("Coincident", 2, 2, 3, 1))
sketch13.addConstraint(Sketcher.Constraint("Coincident", 3, 2, 0, 1))
sketch13.addConstraint(Sketcher.Constraint("Vertical", 0))
sketch13.addConstraint(Sketcher.Constraint("Horizontal", 1))
sketch13.addConstraint(Sketcher.Constraint("Vertical", 2))
sketch13.addConstraint(Sketcher.Constraint("Horizontal", 3))
sketch13.addConstraint(Sketcher.Constraint("DistanceY", 0, 2, 0, 1, Q("2 mm")))
sketch13.addConstraint(Sketcher.Constraint("DistanceX", 1, 1, 1, 2, Q("2.8 mm")))
sketch13.addConstraint(Sketcher.Constraint("DistanceX", -1, 1, 1, 2, Q("88 mm")))
sketch13.addConstraint(Sketcher.Constraint("DistanceY", 0, 2, -1, 1, Q("13.8 mm")))

sketch14 = body.newObject("Sketcher::SketchObject", "Sketch013")
sketch14.AttachmentSupport = (doc.getObject("XZ_Plane"), [""])
sketch14.MapMode = "FlatFace"
sketch14.AttachmentOffset = App.Placement(Vector(0, 0, -63), App.Rotation())
sketch14.addGeometry(Part.LineSegment(Vector(85.2, -12.2, 0), Vector(85.2, -13.4, 0)), False)
sketch14.addGeometry(Part.LineSegment(Vector(85.2, -13.4, 0), Vector(88, -13.4, 0)), False)
sketch14.addGeometry(Part.LineSegment(Vector(88, -13.4, 0), Vector(88, -12.2, 0)), False)
sketch14.addGeometry(Part.LineSegment(Vector(88, -12.2, 0), Vector(85.2, -12.2, 0)), False)
sketch14.addConstraint(Sketcher.Constraint("Coincident", 0, 2, 1, 1))
sketch14.addConstraint(Sketcher.Constraint("Coincident", 1, 2, 2, 1))
sketch14.addConstraint(Sketcher.Constraint("Coincident", 2, 2, 3, 1))
sketch14.addConstraint(Sketcher.Constraint("Coincident", 3, 2, 0, 1))
sketch14.addConstraint(Sketcher.Constraint("Vertical", 0))
sketch14.addConstraint(Sketcher.Constraint("Horizontal", 1))
sketch14.addConstraint(Sketcher.Constraint("Vertical", 2))
sketch14.addConstraint(Sketcher.Constraint("Horizontal", 3))
sketch14.addConstraint(Sketcher.Constraint("DistanceX", 1, 1, 1, 2, Q("2.8 mm")))
sketch14.addConstraint(Sketcher.Constraint("DistanceY", 0, 2, 0, 1, Q("1.2 mm")))
sketch14.addConstraint(Sketcher.Constraint("DistanceX", -1, 1, 1, 2, Q("88 mm")))
sketch14.addConstraint(Sketcher.Constraint("DistanceY", 0, 2, -1, 1, Q("13.4 mm")))

additiveloft4 = body.newObject("PartDesign::AdditiveLoft", "AdditiveLoft003")
additiveloft4.Profile = sketch13
additiveloft4.Sections = [sketch14]
doc.recompute()

chamfer = body.newObject("PartDesign::Chamfer", "Chamfer")
chamfer.Base = (additiveloft4, edges_at(additiveloft4, [(0, -81.4, -3), (0, 81.4, -3)]))
chamfer.Size = 1.4
doc.recompute()

chamfer2 = body.newObject("PartDesign::Chamfer", "Chamfer001")
chamfer2.Base = (chamfer, edges_at(chamfer, [(-49.5, 4, 0)]))
chamfer2.Size = 1
body2 = doc.addObject("PartDesign::Body", "Body001")
doc.recompute()

body.Placement = App.Placement(Vector(0, 0, 21), App.Rotation(Vector(0, 0, 1), 0))
boolean = body2.newObject("PartDesign::Boolean", "Boolean")
boolean.Type = "Fuse"
boolean.addObjects([body])

doc.recompute()
